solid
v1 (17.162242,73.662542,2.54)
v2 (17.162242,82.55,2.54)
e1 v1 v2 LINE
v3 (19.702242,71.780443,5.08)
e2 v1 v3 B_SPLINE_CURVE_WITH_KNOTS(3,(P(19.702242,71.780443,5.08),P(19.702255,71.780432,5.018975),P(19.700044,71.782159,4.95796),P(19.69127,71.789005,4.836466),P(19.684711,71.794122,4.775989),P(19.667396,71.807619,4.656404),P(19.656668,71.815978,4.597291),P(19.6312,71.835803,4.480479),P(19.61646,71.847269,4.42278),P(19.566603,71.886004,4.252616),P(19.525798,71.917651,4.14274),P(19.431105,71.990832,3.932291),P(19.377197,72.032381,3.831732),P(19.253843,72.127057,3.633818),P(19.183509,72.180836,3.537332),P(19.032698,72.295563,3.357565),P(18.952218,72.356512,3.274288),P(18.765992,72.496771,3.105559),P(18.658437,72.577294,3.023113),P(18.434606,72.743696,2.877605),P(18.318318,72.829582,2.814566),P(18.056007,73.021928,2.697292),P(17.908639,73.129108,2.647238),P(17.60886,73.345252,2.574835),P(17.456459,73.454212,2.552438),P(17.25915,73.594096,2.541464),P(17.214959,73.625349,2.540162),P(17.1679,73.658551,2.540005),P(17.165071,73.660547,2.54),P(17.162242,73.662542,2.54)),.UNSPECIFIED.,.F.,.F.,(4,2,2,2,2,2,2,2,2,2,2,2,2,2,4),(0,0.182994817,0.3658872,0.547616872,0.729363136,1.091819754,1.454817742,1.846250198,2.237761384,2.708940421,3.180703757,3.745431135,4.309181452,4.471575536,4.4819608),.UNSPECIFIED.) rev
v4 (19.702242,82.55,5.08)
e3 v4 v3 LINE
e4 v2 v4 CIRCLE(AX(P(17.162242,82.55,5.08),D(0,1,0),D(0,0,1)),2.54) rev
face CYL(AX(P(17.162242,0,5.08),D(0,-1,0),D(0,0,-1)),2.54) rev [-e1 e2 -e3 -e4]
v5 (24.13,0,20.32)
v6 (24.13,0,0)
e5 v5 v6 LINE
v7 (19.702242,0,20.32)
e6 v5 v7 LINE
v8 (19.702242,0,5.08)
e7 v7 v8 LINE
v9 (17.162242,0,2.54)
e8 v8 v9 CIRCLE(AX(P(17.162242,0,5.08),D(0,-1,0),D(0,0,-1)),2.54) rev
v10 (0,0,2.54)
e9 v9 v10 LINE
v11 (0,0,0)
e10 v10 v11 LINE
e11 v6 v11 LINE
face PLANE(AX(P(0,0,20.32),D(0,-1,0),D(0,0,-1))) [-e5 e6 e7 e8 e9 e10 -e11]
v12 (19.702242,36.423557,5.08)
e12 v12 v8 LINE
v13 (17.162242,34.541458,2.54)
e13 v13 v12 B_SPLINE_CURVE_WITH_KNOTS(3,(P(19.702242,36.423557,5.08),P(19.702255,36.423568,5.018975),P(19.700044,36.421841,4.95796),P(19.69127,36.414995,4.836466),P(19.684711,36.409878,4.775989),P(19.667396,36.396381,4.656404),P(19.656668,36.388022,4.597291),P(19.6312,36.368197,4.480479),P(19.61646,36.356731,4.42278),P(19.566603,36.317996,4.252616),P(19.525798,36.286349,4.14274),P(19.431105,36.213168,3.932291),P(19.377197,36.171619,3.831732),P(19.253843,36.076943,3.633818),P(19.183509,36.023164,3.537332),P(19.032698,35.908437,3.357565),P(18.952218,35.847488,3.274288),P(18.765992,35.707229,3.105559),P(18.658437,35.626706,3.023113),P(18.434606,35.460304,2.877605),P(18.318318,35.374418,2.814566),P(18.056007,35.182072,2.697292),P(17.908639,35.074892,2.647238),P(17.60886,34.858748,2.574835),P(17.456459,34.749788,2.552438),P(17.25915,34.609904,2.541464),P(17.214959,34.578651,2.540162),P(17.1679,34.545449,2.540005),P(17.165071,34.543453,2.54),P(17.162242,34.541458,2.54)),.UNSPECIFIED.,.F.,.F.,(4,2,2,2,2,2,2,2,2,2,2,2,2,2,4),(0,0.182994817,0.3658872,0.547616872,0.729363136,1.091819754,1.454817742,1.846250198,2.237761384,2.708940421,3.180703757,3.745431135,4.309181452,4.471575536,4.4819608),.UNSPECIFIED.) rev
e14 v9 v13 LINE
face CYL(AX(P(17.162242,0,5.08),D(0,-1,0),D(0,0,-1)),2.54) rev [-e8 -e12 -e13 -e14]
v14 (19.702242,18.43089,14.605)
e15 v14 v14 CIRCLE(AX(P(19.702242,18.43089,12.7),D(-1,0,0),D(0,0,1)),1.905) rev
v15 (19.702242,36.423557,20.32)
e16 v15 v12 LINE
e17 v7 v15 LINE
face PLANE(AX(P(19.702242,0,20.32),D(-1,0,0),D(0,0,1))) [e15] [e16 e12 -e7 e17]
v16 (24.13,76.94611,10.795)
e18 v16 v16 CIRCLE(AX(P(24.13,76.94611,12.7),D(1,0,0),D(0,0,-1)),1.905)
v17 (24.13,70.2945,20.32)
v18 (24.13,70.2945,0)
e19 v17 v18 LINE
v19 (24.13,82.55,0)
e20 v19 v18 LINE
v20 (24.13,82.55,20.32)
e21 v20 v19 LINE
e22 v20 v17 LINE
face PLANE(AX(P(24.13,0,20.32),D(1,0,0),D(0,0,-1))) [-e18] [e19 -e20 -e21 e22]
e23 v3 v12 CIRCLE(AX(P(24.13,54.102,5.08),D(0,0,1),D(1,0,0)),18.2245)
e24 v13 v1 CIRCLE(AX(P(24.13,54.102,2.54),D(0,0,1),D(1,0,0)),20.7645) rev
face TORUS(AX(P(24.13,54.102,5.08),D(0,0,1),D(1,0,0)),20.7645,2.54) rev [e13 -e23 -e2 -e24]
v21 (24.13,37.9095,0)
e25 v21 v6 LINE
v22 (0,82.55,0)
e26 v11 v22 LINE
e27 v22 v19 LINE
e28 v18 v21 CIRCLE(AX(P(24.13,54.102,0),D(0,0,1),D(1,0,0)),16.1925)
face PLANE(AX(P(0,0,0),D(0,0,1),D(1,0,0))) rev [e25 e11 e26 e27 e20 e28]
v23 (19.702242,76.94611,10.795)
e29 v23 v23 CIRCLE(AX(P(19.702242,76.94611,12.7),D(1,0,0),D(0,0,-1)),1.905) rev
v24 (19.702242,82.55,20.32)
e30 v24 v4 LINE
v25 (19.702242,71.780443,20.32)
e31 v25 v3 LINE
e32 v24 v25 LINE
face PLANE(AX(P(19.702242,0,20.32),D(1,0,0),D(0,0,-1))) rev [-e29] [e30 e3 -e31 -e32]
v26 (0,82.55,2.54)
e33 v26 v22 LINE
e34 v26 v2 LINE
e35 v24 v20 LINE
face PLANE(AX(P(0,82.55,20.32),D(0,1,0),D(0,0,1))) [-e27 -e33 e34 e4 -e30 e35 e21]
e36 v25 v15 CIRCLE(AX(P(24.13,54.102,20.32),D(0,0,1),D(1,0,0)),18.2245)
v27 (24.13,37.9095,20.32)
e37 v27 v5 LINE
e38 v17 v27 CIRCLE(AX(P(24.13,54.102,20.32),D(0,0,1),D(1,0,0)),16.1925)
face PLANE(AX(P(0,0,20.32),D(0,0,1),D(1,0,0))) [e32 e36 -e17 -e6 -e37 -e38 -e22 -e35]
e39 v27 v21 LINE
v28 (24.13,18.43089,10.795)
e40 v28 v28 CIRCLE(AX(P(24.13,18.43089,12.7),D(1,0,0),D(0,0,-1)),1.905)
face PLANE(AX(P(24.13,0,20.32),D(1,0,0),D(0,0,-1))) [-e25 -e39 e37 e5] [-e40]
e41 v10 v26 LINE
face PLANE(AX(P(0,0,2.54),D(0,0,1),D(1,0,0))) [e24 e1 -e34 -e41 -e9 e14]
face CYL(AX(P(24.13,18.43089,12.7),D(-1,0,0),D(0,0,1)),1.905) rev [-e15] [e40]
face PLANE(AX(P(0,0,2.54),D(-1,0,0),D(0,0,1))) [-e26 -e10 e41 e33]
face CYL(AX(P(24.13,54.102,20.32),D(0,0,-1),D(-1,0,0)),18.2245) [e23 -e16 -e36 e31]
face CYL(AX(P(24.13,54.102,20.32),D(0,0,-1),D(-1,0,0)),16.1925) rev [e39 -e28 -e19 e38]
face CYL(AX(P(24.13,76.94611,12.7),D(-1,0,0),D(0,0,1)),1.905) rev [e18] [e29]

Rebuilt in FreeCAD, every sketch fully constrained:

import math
import FreeCAD as App
import Part
import Sketcher
Q = App.Units.Quantity


def edges_at(feature, points):
    """Names of the edges that pass closest to the given points."""
    edges = feature.Shape.Edges
    near = lambda p: min(range(len(edges)), key=lambda i: edges[i].distToShape(Part.Vertex(*p))[0])
    return sorted({f"Edge{near(p) + 1}" for p in points})

doc = App.newDocument("Part")
body = doc.addObject("PartDesign::Body", "Body")

sketch1 = body.newObject("Sketcher::SketchObject", "Sketch")
sketch1.AttachmentSupport = (doc.getObject("XY_Plane"), [""])
sketch1.MapMode = "FlatFace"
sketch1.addGeometry(Part.LineSegment(App.Vector(19.7, 36.4, 0), App.Vector(19.7, 0, 0)), False)
sketch1.addGeometry(Part.LineSegment(App.Vector(19.7, 0, 0), App.Vector(24.1, 0, 0)), False)
sketch1.addGeometry(Part.LineSegment(App.Vector(24.1, 0, 0), App.Vector(24.1, 37.9, 0)), False)
sketch1.addGeometry(Part.ArcOfCircle(Part.Circle(App.Vector(24.1, 54.1, 0), App.Vector(0, 0, 1), 16.2), math.radians(90), math.radians(270)), False)
sketch1.addGeometry(Part.LineSegment(App.Vector(24.1, 70.3, 0), App.Vector(24.1, 82.5, 0)), False)
sketch1.addGeometry(Part.LineSegment(App.Vector(24.1, 82.5, 0), App.Vector(19.7, 82.5, 0)), False)
sketch1.addGeometry(Part.LineSegment(App.Vector(19.7, 82.5, 0), App.Vector(19.7, 71.8, 0)), False)
sketch1.addGeometry(Part.ArcOfCircle(Part.Circle(App.Vector(24.1, 54.1, 0), App.Vector(0, 0, 1), 18.2), math.radians(104), math.radians(256)), False)
sketch1.addConstraint(Sketcher.Constraint("Coincident", 0, 2, 1, 1))
sketch1.addConstraint(Sketcher.Constraint("Coincident", 1, 2, 2, 1))
sketch1.addConstraint(Sketcher.Constraint("Coincident", 2, 2, 3, 2))
sketch1.addConstraint(Sketcher.Constraint("Coincident", 3, 1, 4, 1))
sketch1.addConstraint(Sketcher.Constraint("Coincident", 4, 2, 5, 1))
sketch1.addConstraint(Sketcher.Constraint("Coincident", 5, 2, 6, 1))
sketch1.addConstraint(Sketcher.Constraint("Coincident", 6, 2, 7, 1))
sketch1.addConstraint(Sketcher.Constraint("Coincident", 7, 2, 0, 1))
sketch1.addConstraint(Sketcher.Constraint("Vertical", 0))
sketch1.addConstraint(Sketcher.Constraint("Horizontal", 1))
sketch1.addConstraint(Sketcher.Constraint("Vertical", 2))
sketch1.addConstraint(Sketcher.Constraint("Vertical", 4))
sketch1.addConstraint(Sketcher.Constraint("Horizontal", 5))
sketch1.addConstraint(Sketcher.Constraint("Vertical", 6))
sketch1.addConstraint(Sketcher.Constraint("Coincident", 7, 3, 3, 3))
sketch1.addConstraint(Sketcher.Constraint("PointOnObject", 0, 2, -1))
sketch1.addConstraint(Sketcher.Constraint("Vertical", 7, 3, 1, 2))
sketch1.addConstraint(Sketcher.Constraint("Vertical", 2, 2, 3, 1))
sketch1.addConstraint(Sketcher.Constraint("Vertical", 0, 2, 5, 2))
sketch1.addConstraint(Sketcher.Constraint("Radius", 3, Q("0.6375 in")))
sketch1.addConstraint(Sketcher.Constraint("Radius", 7, Q("0.7175 in")))
sketch1.addConstraint(Sketcher.Constraint("DistanceX", -1, 1, 3, 3, Q("0.95 in")))
sketch1.addConstraint(Sketcher.Constraint("DistanceY", -1, 1, 3, 3, Q("2.13 in")))
sketch1.addConstraint(Sketcher.Constraint("DistanceY", -1, 1, 4, 2, Q("3.25 in")))
sketch1.addConstraint(Sketcher.Constraint("DistanceX", 1, 1, 1, 2, 4.427758))
pad1 = body.newObject("PartDesign::Pad", "Pad")
pad1.Profile = sketch1
pad1.Length = Q("0.8 in")

sketch2 = body.newObject("Sketcher::SketchObject", "Sketch001")
sketch2.AttachmentSupport = (doc.getObject("XY_Plane"), [""])
sketch2.MapMode = "FlatFace"
sketch2.addGeometry(Part.LineSegment(App.Vector(0, 83, 0), App.Vector(0, 0, 0)), False)
sketch2.addGeometry(Part.LineSegment(App.Vector(0, 0, 0), App.Vector(20, 0, 0)), False)
sketch2.addGeometry(Part.LineSegment(App.Vector(20, 0, 0), App.Vector(20, 36, 0)), False)
sketch2.addGeometry(Part.ArcOfCircle(Part.Circle(App.Vector(24, 54, 0), App.Vector(0, 0, 1), 18), math.radians(104), math.radians(256)), False)
sketch2.addGeometry(Part.LineSegment(App.Vector(20, 72, 0), App.Vector(20, 83, 0)), False)
sketch2.addGeometry(Part.LineSegment(App.Vector(20, 83, 0), App.Vector(0, 83, 0)), False)
sketch2.addConstraint(Sketcher.Constraint("Coincident", 0, 2, 1, 1))
sketch2.addConstraint(Sketcher.Constraint("Coincident", 1, 2, 2, 1))
sketch2.addConstraint(Sketcher.Constraint("Coincident", 2, 2, 3, 2))
sketch2.addConstraint(Sketcher.Constraint("Coincident", 3, 1, 4, 1))
sketch2.addConstraint(Sketcher.Constraint("Coincident", 4, 2, 5, 1))
sketch2.addConstraint(Sketcher.Constraint("Coincident", 5, 2, 0, 1))
sketch2.addConstraint(Sketcher.Constraint("Vertical", 0))
sketch2.addConstraint(Sketcher.Constraint("Horizontal", 1))
sketch2.addConstraint(Sketcher.Constraint("Vertical", 2))
sketch2.addConstraint(Sketcher.Constraint("Vertical", 4))
sketch2.addConstraint(Sketcher.Constraint("Horizontal", 5))
sketch2.addConstraint(Sketcher.Constraint("Coincident", 0, 2, -1, 1))
sketch2.addConstraint(Sketcher.Constraint("Vertical", 2, 2, 3, 1))
sketch2.addConstraint(Sketcher.Constraint("DistanceY", 0, 2, 0, 1, Q("3.25 in")))
sketch2.addConstraint(Sketcher.Constraint("Radius", 3, Q("0.7175 in")))
sketch2.addConstraint(Sketcher.Constraint("DistanceX", -1, 1, 3, 3, Q("0.95 in")))
sketch2.addConstraint(Sketcher.Constraint("DistanceY", -1, 1, 3, 3, Q("2.13 in")))
sketch2.addConstraint(Sketcher.Constraint("DistanceX", 1, 1, 1, 2, 19.702242))
pad2 = body.newObject("PartDesign::Pad", "Pad001")
pad2.Profile = sketch2
pad2.Length = Q("0.1 in")

sketch3 = body.newObject("Sketcher::SketchObject", "Sketch002")
sketch3.AttachmentSupport = (doc.getObject("YZ_Plane"), [""])
sketch3.MapMode = "FlatFace"
sketch3.addGeometry(Part.Circle(App.Vector(18.4, 12.7, 0), App.Vector(0, 0, 1), 1.9), False)
sketch3.addGeometry(Part.Circle(App.Vector(76.9, 12.7, 0), App.Vector(0, 0, 1), 1.9), False)
sketch3.addConstraint(Sketcher.Constraint("Equal", 0, 1))
sketch3.addConstraint(Sketcher.Constraint("Horizontal", 0, 3, 1, 3))
sketch3.addConstraint(Sketcher.Constraint("Diameter", 0, Q("0.15 in")))
sketch3.addConstraint(Sketcher.Constraint("DistanceY", -1, 1, 0, 3, Q("0.5 in")))
sketch3.addConstraint(Sketcher.Constraint("DistanceX", -1, 1, 0, 3, 18.43089))
sketch3.addConstraint(Sketcher.Constraint("DistanceX", -1, 1, 1, 3, 76.94611))
pocket1 = body.newObject("PartDesign::Pocket", "Pocket")
pocket1.Profile = sketch3
pocket1.Type = "ThroughAll"
pocket1.Midplane = True
doc.recompute()

fillet = body.newObject("PartDesign::Fillet", "Fillet")
fillet.Base = (pocket1, edges_at(pocket1, [(5.905, 54.102, 2.54), (19.702, 77.165, 2.54), (19.702, 18.212, 2.54)]))
fillet.Radius = Q("0.1 in")

doc.recompute()
